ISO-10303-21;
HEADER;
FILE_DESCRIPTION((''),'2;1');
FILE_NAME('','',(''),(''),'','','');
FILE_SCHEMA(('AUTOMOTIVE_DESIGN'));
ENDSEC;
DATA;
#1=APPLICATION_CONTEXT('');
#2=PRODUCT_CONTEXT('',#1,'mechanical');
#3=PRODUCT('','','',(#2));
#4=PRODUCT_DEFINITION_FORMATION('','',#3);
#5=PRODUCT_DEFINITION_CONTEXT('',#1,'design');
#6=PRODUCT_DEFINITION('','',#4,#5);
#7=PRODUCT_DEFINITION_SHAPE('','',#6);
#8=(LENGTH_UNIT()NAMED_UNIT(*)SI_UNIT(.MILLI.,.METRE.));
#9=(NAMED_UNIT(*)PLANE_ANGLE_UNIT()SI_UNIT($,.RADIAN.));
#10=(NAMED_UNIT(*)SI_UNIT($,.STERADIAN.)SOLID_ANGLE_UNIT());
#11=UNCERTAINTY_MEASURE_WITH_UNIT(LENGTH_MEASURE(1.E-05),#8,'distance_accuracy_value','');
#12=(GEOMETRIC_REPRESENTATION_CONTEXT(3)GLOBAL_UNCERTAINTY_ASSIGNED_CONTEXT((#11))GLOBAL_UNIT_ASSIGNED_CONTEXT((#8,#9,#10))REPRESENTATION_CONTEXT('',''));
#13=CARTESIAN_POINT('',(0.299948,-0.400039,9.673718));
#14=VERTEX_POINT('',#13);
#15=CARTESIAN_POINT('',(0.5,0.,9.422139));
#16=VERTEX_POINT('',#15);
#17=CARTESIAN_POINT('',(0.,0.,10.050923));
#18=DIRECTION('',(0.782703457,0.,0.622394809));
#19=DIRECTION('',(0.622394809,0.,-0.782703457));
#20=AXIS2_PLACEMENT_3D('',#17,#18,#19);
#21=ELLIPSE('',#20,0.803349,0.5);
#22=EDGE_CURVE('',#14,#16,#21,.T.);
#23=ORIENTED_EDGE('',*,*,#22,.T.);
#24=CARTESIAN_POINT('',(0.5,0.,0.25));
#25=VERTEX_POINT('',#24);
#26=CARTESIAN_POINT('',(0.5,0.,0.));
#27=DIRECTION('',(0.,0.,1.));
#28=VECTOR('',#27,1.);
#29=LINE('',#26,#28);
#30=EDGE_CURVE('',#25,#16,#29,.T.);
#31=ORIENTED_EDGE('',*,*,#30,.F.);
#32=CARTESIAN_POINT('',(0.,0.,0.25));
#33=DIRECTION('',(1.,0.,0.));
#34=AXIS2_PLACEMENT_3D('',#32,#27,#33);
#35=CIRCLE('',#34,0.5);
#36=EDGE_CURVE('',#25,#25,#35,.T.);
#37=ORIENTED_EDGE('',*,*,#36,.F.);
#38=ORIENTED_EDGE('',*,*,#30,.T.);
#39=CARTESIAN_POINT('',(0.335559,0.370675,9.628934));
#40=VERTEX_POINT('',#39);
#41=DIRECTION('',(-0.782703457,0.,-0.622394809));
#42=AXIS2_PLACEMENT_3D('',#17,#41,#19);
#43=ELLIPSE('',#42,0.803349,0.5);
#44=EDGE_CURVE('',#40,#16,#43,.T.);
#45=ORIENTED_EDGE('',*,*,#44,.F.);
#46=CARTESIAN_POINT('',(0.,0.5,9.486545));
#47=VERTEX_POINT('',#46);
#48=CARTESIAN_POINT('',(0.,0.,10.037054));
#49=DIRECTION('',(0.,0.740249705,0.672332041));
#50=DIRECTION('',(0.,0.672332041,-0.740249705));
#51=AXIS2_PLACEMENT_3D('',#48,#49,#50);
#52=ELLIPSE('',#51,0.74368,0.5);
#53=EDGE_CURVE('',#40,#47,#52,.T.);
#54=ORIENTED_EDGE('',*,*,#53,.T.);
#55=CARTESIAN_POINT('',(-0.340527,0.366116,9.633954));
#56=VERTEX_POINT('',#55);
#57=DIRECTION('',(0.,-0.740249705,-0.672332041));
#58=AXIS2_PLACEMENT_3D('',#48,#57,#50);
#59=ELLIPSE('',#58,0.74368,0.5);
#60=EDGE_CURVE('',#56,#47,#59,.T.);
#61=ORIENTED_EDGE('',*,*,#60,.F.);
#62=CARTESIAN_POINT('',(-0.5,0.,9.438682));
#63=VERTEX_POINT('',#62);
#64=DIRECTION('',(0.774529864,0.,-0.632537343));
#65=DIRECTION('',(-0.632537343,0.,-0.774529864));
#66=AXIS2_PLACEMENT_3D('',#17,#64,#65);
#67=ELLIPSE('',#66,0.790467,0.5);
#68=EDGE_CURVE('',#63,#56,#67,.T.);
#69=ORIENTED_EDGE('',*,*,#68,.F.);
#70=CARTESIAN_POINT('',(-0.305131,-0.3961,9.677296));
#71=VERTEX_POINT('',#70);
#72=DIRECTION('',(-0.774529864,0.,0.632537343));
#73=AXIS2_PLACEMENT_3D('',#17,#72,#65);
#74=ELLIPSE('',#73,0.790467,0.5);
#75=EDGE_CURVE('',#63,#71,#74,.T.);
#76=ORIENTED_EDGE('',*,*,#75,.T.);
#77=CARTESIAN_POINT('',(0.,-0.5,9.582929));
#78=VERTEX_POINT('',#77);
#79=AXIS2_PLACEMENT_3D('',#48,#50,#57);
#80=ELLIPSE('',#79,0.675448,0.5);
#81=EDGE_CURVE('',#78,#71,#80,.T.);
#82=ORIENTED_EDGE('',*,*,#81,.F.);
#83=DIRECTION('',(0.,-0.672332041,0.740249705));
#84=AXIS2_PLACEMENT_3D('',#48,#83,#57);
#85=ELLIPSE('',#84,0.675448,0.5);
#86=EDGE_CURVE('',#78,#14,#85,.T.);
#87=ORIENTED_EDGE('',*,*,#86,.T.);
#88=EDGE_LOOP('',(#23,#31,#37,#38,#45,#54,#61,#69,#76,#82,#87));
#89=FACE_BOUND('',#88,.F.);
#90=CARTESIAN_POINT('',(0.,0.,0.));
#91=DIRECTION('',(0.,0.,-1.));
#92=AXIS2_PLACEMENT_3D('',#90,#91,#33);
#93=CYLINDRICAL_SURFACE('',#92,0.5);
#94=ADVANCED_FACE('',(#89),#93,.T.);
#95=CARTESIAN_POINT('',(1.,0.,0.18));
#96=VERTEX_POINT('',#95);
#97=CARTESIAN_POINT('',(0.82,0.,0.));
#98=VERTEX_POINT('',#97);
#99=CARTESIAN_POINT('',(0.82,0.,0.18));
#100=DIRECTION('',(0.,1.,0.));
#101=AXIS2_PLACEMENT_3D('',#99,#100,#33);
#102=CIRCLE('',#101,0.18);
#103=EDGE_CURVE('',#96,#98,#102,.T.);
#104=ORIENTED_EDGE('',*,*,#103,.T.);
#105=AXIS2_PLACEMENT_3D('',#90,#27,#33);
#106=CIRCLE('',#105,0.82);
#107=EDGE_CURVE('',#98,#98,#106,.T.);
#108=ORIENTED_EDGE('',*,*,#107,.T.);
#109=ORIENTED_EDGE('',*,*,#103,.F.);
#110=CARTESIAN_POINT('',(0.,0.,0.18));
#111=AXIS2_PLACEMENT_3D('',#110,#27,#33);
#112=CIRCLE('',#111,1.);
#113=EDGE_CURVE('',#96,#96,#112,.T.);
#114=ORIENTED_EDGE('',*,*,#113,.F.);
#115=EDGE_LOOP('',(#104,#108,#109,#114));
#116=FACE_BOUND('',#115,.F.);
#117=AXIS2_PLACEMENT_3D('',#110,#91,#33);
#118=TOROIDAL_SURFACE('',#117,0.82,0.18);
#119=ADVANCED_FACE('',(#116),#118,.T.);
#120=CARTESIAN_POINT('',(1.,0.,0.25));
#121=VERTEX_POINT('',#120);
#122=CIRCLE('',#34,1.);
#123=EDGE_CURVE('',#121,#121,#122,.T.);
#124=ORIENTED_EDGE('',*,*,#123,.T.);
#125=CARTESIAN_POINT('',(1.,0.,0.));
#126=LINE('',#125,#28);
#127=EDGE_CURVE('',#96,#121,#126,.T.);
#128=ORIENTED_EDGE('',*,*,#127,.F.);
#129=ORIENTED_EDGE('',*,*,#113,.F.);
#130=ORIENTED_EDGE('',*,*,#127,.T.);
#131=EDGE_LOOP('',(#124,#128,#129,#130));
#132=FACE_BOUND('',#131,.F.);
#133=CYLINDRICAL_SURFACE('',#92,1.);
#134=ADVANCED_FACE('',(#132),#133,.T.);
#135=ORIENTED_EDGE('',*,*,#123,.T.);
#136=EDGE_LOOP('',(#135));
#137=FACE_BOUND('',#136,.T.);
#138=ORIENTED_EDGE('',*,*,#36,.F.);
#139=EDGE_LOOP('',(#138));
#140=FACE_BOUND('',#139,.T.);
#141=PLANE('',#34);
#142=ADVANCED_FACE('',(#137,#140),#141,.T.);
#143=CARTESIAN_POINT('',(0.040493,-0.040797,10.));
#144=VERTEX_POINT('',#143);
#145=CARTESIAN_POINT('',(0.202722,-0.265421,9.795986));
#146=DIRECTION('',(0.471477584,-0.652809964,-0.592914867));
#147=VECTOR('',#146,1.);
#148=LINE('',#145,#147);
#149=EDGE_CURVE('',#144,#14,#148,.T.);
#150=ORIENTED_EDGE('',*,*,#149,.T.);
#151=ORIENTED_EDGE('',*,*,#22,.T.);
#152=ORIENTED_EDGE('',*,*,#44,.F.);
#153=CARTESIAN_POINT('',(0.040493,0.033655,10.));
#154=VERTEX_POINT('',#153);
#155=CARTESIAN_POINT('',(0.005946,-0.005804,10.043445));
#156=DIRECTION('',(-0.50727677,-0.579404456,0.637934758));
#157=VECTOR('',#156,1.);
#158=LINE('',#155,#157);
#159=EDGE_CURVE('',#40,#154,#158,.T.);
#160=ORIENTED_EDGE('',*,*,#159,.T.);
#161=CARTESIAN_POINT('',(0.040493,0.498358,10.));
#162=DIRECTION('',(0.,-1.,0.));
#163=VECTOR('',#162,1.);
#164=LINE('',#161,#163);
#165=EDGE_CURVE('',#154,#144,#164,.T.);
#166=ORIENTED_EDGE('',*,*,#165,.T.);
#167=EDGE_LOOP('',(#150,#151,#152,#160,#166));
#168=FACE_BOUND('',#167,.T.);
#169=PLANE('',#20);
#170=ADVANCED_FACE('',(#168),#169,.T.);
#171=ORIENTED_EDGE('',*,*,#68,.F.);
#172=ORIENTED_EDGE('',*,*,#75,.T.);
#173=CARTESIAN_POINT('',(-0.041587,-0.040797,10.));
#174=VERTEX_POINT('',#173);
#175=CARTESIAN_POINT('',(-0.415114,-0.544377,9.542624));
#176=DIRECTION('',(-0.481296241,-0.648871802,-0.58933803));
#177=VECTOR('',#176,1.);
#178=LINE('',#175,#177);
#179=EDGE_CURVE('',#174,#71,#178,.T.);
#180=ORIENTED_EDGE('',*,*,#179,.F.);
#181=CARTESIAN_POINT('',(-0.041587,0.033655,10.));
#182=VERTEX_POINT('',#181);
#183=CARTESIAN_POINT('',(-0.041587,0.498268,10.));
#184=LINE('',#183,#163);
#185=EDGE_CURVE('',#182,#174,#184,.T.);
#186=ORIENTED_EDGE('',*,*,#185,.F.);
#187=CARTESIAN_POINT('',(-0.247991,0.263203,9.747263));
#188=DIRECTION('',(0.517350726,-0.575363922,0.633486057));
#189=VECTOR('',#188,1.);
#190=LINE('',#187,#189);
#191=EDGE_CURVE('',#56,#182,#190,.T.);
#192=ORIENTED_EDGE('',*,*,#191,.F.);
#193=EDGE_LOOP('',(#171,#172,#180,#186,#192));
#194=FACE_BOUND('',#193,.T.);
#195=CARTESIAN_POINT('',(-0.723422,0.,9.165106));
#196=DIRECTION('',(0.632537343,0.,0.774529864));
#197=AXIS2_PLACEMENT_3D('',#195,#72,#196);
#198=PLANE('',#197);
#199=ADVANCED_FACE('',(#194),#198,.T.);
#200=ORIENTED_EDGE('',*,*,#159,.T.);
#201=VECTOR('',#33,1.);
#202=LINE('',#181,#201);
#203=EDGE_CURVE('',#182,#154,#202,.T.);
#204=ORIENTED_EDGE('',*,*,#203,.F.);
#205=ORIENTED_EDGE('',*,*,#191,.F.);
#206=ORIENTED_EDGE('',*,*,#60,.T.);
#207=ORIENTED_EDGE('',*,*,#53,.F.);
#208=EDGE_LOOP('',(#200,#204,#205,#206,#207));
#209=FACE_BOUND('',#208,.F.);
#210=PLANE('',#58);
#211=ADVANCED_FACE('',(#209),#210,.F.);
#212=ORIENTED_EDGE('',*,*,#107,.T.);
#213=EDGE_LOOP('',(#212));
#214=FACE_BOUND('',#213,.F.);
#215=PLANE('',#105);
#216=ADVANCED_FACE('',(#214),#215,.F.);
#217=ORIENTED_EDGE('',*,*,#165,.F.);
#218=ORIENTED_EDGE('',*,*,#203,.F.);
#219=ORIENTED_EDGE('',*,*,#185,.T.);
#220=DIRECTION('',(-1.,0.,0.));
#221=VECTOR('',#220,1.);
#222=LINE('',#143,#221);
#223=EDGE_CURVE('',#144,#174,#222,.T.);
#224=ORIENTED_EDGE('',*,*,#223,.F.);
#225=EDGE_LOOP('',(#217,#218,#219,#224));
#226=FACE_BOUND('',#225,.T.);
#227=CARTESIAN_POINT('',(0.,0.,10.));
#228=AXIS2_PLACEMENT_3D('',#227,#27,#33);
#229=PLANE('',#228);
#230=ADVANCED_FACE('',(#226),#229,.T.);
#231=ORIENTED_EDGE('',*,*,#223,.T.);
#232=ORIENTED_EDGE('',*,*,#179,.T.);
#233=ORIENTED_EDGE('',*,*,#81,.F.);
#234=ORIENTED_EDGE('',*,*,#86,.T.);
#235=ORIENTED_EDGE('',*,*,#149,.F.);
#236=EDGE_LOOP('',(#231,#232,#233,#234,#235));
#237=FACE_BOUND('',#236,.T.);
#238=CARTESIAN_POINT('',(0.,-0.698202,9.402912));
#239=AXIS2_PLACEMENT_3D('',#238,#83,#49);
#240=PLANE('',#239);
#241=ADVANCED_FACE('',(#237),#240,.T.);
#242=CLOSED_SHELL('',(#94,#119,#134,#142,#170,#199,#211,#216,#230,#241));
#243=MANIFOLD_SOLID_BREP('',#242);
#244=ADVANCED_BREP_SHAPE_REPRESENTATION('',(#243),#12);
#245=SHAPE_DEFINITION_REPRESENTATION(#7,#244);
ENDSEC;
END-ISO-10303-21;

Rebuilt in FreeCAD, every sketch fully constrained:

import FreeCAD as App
import Part
import Sketcher

V = App.Vector
Q = App.Units.Quantity


def edges_at(feature, points):
    """Names of the edges that pass closest to the given points."""
    edges = feature.Shape.Edges
    near = lambda p: min(range(len(edges)), key=lambda i: edges[i].distToShape(Part.Vertex(*p))[0])
    return sorted({f"Edge{near(p) + 1}" for p in points})

doc = App.newDocument("Part")
params = doc.addObject("Spreadsheet::Sheet", "Params")
for row, (alias, value) in enumerate([
    ("sketch1_diameter", "1 mm"),
    ("pad1_length", "10 mm"),
    ("sketch2_diameter", "2 mm"),
    ("sketch2_diameter2", "1 mm"),
    ("pad2_length", "0.25 mm"),
    ("fillet_radius", "0.18 mm"),
], start=1):
    params.set(f"A{row}", alias)
    params.set(f"B{row}", "=" + value)
    params.setAlias(f"B{row}", alias)

body = doc.addObject("PartDesign::Body", "Body")

# Sketch on XY plane
sketch1 = body.newObject("Sketcher::SketchObject", "Sketch")
sketch1.AttachmentSupport = (doc.getObject("XY_Plane"), [""])
sketch1.MapMode = "FlatFace"
sketch1.addGeometry(Part.Circle(V(0, 0, 0), V(0, 0, 1), 0.5), False)
sketch1.addConstraint(Sketcher.Constraint("Coincident", 0, 3, -1, 1))
sketch1.addConstraint(Sketcher.Constraint("Diameter", 0, Q("1 mm")))
sketch1.setExpression("Constraints[1]", "Params.sketch1_diameter")
pad1 = body.newObject("PartDesign::Pad", "Pad")
pad1.Profile = sketch1
pad1.setExpression("Length", "Params.pad1_length")

# Sketch on XY plane
sketch2 = body.newObject("Sketcher::SketchObject", "Sketch001")
sketch2.AttachmentSupport = (doc.getObject("XY_Plane"), [""])
sketch2.MapMode = "FlatFace"
sketch2.addGeometry(Part.Circle(V(0, 0, 0), V(0, 0, 1), 1), False)
sketch2.addGeometry(Part.Circle(V(0, 0, 0), V(0, 0, 1), 0.5), False)
sketch2.addConstraint(Sketcher.Constraint("Coincident", 0, 3, -1, 1))
sketch2.addConstraint(Sketcher.Constraint("Coincident", 1, 3, -1, 1))
sketch2.addConstraint(Sketcher.Constraint("Diameter", 0, Q("2 mm")))
sketch2.addConstraint(Sketcher.Constraint("Diameter", 1, Q("1 mm")))
sketch2.setExpression("Constraints[2]", "Params.sketch2_diameter")
sketch2.setExpression("Constraints[3]", "Params.sketch2_diameter2")
pad2 = body.newObject("PartDesign::Pad", "Pad001")
pad2.Profile = sketch2
pad2.setExpression("Length", "Params.pad2_length")
doc.recompute()

fillet = body.newObject("PartDesign::Fillet", "Fillet")
fillet.Base = (pad2, edges_at(pad2, [(-1, 0, 0)]))
fillet.setExpression("Radius", "Params.fillet_radius")

# Sketch on XZ plane
sketch3 = body.newObject("Sketcher::SketchObject", "Sketch002")
sketch3.AttachmentSupport = (doc.getObject("XZ_Plane"), [""])
sketch3.MapMode = "FlatFace"
sketch3.addGeometry(Part.LineSegment(V(-1.6, 9.1, 0), V(-0.7, 9.2, 0)), False)
sketch3.addGeometry(Part.LineSegment(V(-0.7, 9.2, 0), V(0, 10.1, 0)), False)
sketch3.addGeometry(Part.LineSegment(V(0, 10.1, 0), V(0.7, 9.1, 0)), False)
sketch3.addGeometry(Part.LineSegment(V(0.7, 9.1, 0), V(1.9, 9.1, 0)), False)
sketch3.addGeometry(Part.LineSegment(V(1.9, 9.1, 0), V(1.9, 11.2, 0)), False)
sketch3.addGeometry(Part.LineSegment(V(1.9, 11.2, 0), V(-1.6, 11.2, 0)), False)
sketch3.addGeometry(Part.LineSegment(V(-1.6, 11.2, 0), V(-1.6, 9.1, 0)), False)
sketch3.addConstraint(Sketcher.Constraint("Coincident", 0, 2, 1, 1))
sketch3.addConstraint(Sketcher.Constraint("Coincident", 1, 2, 2, 1))
sketch3.addConstraint(Sketcher.Constraint("Coincident", 2, 2, 3, 1))
sketch3.addConstraint(Sketcher.Constraint("Coincident", 3, 2, 4, 1))
sketch3.addConstraint(Sketcher.Constraint("Coincident", 4, 2, 5, 1))
sketch3.addConstraint(Sketcher.Constraint("Coincident", 5, 2, 6, 1))
sketch3.addConstraint(Sketcher.Constraint("Coincident", 6, 2, 0, 1))
sketch3.addConstraint(Sketcher.Constraint("Horizontal", 3))
sketch3.addConstraint(Sketcher.Constraint("Vertical", 4))
sketch3.addConstraint(Sketcher.Constraint("Horizontal", 5))
sketch3.addConstraint(Sketcher.Constraint("Vertical", 6))
sketch3.addConstraint(Sketcher.Constraint("PointOnObject", 1, 2, -2))
sketch3.addConstraint(Sketcher.Constraint("DistanceY", 6, 2, 6, 1, Q("2.119011 mm")))
sketch3.addConstraint(Sketcher.Constraint("DistanceX", -1, 1, 2, 2, Q("0.7182 mm")))
sketch3.addConstraint(Sketcher.Constraint("DistanceX", 5, 2, -1, 1, Q("1.5745 mm")))
sketch3.addConstraint(Sketcher.Constraint("Distance", 2, Q("1.153931 mm")))
sketch3.addConstraint(Sketcher.Constraint("DistanceX", 3, 1, 3, 2, Q("1.198457 mm")))
sketch3.addConstraint(Sketcher.Constraint("DistanceY", 4, 1, 4, 2, Q("2.101642 mm")))
sketch3.addConstraint(Sketcher.Constraint("DistanceX", 0, 2, -1, 1, Q("0.723422 mm")))
sketch3.addConstraint(Sketcher.Constraint("DistanceY", -1, 1, 4, 2, Q("11.249379 mm")))
sketch3.addConstraint(Sketcher.Constraint("DistanceY", 2, 2, 0, 2, Q("0.017369 mm")))
pocket1 = body.newObject("PartDesign::Pocket", "Pocket")
pocket1.Profile = sketch3
pocket1.Type = "ThroughAll"
pocket1.Midplane = True

# Sketch on YZ plane
sketch4 = body.newObject("Sketcher::SketchObject", "Sketch003")
sketch4.AttachmentSupport = (doc.getObject("YZ_Plane"), [""])
sketch4.MapMode = "FlatFace"
sketch4.addGeometry(Part.LineSegment(V(-1.6, 9.5, 0), V(-0.7, 9.4, 0)), False)
sketch4.addGeometry(Part.LineSegment(V(-0.7, 9.4, 0), V(0, 10, 0)), False)
sketch4.addGeometry(Part.LineSegment(V(0, 10, 0), V(0.6, 9.4, 0)), False)
sketch4.addGeometry(Part.LineSegment(V(0.6, 9.4, 0), V(1.6, 9.4, 0)), False)
sketch4.addGeometry(Part.LineSegment(V(1.6, 9.4, 0), V(1.6, 11, 0)), False)
sketch4.addGeometry(Part.LineSegment(V(1.6, 11, 0), V(-1.6, 11, 0)), False)
sketch4.addGeometry(Part.LineSegment(V(-1.6, 11, 0), V(-1.6, 9.5, 0)), False)
sketch4.addConstraint(Sketcher.Constraint("Coincident", 0, 2, 1, 1))
sketch4.addConstraint(Sketcher.Constraint("Coincident", 1, 2, 2, 1))
sketch4.addConstraint(Sketcher.Constraint("Coincident", 2, 2, 3, 1))
sketch4.addConstraint(Sketcher.Constraint("Coincident", 3, 2, 4, 1))
sketch4.addConstraint(Sketcher.Constraint("Coincident", 4, 2, 5, 1))
sketch4.addConstraint(Sketcher.Constraint("Coincident", 5, 2, 6, 1))
sketch4.addConstraint(Sketcher.Constraint("Coincident", 6, 2, 0, 1))
sketch4.addConstraint(Sketcher.Constraint("Horizontal", 3))
sketch4.addConstraint(Sketcher.Constraint("Vertical", 4))
sketch4.addConstraint(Sketcher.Constraint("Horizontal", 5))
sketch4.addConstraint(Sketcher.Constraint("Vertical", 6))
sketch4.addConstraint(Sketcher.Constraint("PointOnObject", 1, 2, -2))
sketch4.addConstraint(Sketcher.Constraint("Perpendicular", 1, 2))
sketch4.addConstraint(Sketcher.Constraint("DistanceX", 5, 2, 5, 1, Q("3.181279 mm")))
sketch4.addConstraint(Sketcher.Constraint("DistanceX", 0, 2, -1, 1, Q("0.698202 mm")))
sketch4.addConstraint(Sketcher.Constraint("DistanceX", 3, 1, 3, 2, Q("0.945823 mm")))
sketch4.addConstraint(Sketcher.Constraint("DistanceY", 4, 1, 4, 2, Q("1.652503 mm")))
sketch4.addConstraint(Sketcher.Constraint("DistanceY", 6, 2, 6, 1, Q("1.553647 mm")))
sketch4.addConstraint(Sketcher.Constraint("DistanceX", -1, 1, 2, 2, Q("0.617748 mm")))
sketch4.addConstraint(Sketcher.Constraint("DistanceY", -1, 1, 6, 2, Q("9.455758 mm")))
sketch4.addConstraint(Sketcher.Constraint("DistanceY", 2, 2, 0, 2, Q("0.04601 mm")))
pocket2 = body.newObject("PartDesign::Pocket", "Pocket001")
pocket2.Profile = sketch4
pocket2.Type = "ThroughAll"
pocket2.Midplane = True

doc.recompute()
